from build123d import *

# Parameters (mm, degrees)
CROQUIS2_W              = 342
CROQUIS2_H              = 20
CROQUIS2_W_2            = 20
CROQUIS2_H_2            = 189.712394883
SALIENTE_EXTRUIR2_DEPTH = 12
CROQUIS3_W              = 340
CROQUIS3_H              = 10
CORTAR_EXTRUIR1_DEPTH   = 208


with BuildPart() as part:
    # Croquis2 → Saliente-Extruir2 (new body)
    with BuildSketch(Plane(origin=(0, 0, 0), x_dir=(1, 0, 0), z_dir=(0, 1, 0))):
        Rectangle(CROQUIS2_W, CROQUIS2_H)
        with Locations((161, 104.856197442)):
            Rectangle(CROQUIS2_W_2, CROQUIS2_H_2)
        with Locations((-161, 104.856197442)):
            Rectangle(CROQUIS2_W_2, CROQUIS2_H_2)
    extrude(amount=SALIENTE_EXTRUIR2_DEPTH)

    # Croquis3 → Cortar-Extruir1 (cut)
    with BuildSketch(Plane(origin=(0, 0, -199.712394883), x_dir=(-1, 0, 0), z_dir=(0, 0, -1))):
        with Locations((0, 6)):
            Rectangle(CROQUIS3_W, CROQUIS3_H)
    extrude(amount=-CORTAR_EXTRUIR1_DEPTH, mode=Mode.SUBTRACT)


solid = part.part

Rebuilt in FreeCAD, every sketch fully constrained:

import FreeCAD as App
import Part
import Sketcher

doc = App.newDocument("Part")
body = doc.addObject("PartDesign::Body", "Body")

# Sketch on XZ plane
sketch1 = body.newObject("Sketcher::SketchObject", "Sketch")
sketch1.AttachmentSupport = (doc.getObject("XZ_Plane"), [""])
sketch1.MapMode = "FlatFace"
sketch1.addGeometry([
    Part.LineSegment(App.Vector(-171, 10, 0), App.Vector(171, 10, 0)),  # 0
    Part.LineSegment(App.Vector(171, 10, 0), App.Vector(171, -199.712395, 0)),  # 1
    Part.LineSegment(App.Vector(171, -199.712395, 0), App.Vector(151, -199.712395, 0)),  # 2
    Part.LineSegment(App.Vector(151, -199.712395, 0), App.Vector(151, -10, 0)),  # 3
    Part.LineSegment(App.Vector(151, -10, 0), App.Vector(-151, -10, 0)),  # 4
    Part.LineSegment(App.Vector(-151, -10, 0), App.Vector(-151, -199.712395, 0)),  # 5
    Part.LineSegment(App.Vector(-151, -199.712395, 0), App.Vector(-171, -199.712395, 0)),  # 6
    Part.LineSegment(App.Vector(-171, -199.712395, 0), App.Vector(-171, 10, 0)),  # 7
], False)
sketch1.addConstraint([
    Sketcher.Constraint("Coincident", 0, 2, 1, 1),
    Sketcher.Constraint("Coincident", 1, 2, 2, 1),
    Sketcher.Constraint("Coincident", 2, 2, 3, 1),
    Sketcher.Constraint("Coincident", 3, 2, 4, 1),
    Sketcher.Constraint("Coincident", 4, 2, 5, 1),
    Sketcher.Constraint("Coincident", 5, 2, 6, 1),
    Sketcher.Constraint("Coincident", 6, 2, 7, 1),
    Sketcher.Constraint("Coincident", 7, 2, 0, 1),
    Sketcher.Constraint("Horizontal", 0),
    Sketcher.Constraint("Vertical", 1),
    Sketcher.Constraint("Horizontal", 2),
    Sketcher.Constraint("Vertical", 3),
    Sketcher.Constraint("Horizontal", 4),
    Sketcher.Constraint("Vertical", 5),
    Sketcher.Constraint("Horizontal", 6),
    Sketcher.Constraint("Vertical", 7),
    Sketcher.Constraint("Symmetric", 2, 2, 5, 2, -2),
    Sketcher.Constraint("Equal", 2, 6),
    Sketcher.Constraint("DistanceX", 0, 1, 0, 2, 342.0),
    Sketcher.Constraint("DistanceX", 2, 2, 2, 1, 20.0),
    Sketcher.Constraint("DistanceY", -1, 1, 0, 2, 10.0),
    Sketcher.Constraint("DistanceY", 3, 2, -1, 1, 10.0),
    Sketcher.Constraint("DistanceY", 1, 2, 1, 1, 209.712395),
])
pad1 = body.newObject("PartDesign::Pad", "Pad")
pad1.Profile = sketch1
pad1.Length = 12
pad1.Reversed = True

# Sketch on XY plane
sketch2 = body.newObject("Sketcher::SketchObject", "Sketch001")
sketch2.AttachmentSupport = (doc.getObject("XY_Plane"), [""])
sketch2.MapMode = "FlatFace"
sketch2.AttachmentOffset = App.Placement(App.Vector(0, 0, -199.712395), App.Rotation())
sketch2.addGeometry([
    Part.LineSegment(App.Vector(170, 11, 0), App.Vector(170, 1, 0)),
    Part.LineSegment(App.Vector(170, 1, 0), App.Vector(-170, 1, 0)),
    Part.LineSegment(App.Vector(-170, 1, 0), App.Vector(-170, 11, 0)),
    Part.LineSegment(App.Vector(-170, 11, 0), App.Vector(170, 11, 0)),
], False)
sketch2.addConstraint([
    Sketcher.Constraint("Coincident", 0, 2, 1, 1),
    Sketcher.Constraint("Coincident", 1, 2, 2, 1),
    Sketcher.Constraint("Coincident", 2, 2, 3, 1),
    Sketcher.Constraint("Coincident", 3, 2, 0, 1),
    Sketcher.Constraint("Vertical", 0),
    Sketcher.Constraint("Horizontal", 1),
    Sketcher.Constraint("Vertical", 2),
    Sketcher.Constraint("Horizontal", 3),
    Sketcher.Constraint("DistanceX", 1, 2, 1, 1, 340.0),
    Sketcher.Constraint("DistanceY", 0, 2, 0, 1, 10.0),
    Sketcher.Constraint("DistanceX", -1, 1, 0, 2, 170.0),
    Sketcher.Constraint("DistanceY", -1, 1, 0, 2, 1.0),
])
pocket1 = body.newObject("PartDesign::Pocket", "Pocket")
pocket1.Profile = sketch2
pocket1.Length = 208
pocket1.Reversed = True

doc.recompute()
